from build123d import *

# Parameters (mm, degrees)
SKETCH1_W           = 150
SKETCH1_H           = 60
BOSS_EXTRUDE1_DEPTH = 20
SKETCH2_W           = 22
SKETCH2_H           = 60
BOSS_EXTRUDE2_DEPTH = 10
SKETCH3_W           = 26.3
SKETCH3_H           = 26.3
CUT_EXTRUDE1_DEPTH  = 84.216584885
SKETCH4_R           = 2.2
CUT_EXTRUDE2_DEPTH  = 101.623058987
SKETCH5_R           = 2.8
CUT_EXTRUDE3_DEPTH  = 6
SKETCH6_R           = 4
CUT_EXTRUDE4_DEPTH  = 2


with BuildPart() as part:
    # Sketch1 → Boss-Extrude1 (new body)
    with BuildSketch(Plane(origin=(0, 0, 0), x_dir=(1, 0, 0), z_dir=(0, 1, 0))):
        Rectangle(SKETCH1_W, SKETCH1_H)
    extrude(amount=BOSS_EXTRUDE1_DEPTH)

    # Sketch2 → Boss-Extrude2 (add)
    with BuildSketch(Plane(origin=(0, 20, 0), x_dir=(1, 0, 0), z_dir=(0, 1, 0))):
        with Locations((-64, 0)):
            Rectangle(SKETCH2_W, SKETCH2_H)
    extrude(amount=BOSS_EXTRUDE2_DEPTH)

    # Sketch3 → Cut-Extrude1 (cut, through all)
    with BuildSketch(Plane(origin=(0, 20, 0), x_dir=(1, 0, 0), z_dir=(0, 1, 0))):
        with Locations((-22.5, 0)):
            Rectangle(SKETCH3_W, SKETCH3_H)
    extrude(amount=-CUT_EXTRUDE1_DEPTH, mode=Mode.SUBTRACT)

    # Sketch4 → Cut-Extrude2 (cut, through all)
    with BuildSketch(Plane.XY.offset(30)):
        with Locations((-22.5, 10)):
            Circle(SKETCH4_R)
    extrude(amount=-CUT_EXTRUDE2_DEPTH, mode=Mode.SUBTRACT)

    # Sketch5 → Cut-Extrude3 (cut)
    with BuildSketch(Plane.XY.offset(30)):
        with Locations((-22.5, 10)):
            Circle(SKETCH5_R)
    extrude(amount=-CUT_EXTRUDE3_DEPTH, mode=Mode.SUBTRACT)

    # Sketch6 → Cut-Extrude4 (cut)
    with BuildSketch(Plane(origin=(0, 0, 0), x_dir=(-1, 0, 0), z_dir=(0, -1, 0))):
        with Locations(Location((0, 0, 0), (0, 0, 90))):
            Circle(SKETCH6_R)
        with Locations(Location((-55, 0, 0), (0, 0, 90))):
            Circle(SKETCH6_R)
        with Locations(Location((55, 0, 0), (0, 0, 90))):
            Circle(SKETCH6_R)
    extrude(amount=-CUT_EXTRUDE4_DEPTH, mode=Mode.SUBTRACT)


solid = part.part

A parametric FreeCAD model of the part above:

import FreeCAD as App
import Part
import Sketcher

V = App.Vector
Q = App.Units.Quantity


def add_polygon(sketch, points):
    """Adds a closed chain of lines whose ends are joined by coincident constraints."""
    first, n = sketch.GeometryCount, len(points)
    for a, b in zip(points, points[1:] + points[:1]):
        sketch.addGeometry(Part.LineSegment(App.Vector(*a, 0), App.Vector(*b, 0)), False)
    for i in range(n):
        sketch.addConstraint(Sketcher.Constraint("Coincident", first + i, 2, first + (i + 1) % n, 1))

doc = App.newDocument("Part")
body = doc.addObject("PartDesign::Body", "Body")

# Sketch on XZ plane
sketch1 = doc.addObject("Sketcher::SketchObject", "Sketch")
body.addObject(sketch1)
sketch1.AttachmentSupport = (doc.XZ_Plane, [""])
sketch1.MapMode = "FlatFace"
add_polygon(sketch1, [(-75, -30), (-75, 30), (75, 30), (75, -30)])  # lines 0-3
sketch1.addConstraint(Sketcher.Constraint("Vertical", 0))
sketch1.addConstraint(Sketcher.Constraint("Horizontal", 1))
sketch1.addConstraint(Sketcher.Constraint("Vertical", 2))
sketch1.addConstraint(Sketcher.Constraint("Horizontal", 3))
sketch1.addConstraint(Sketcher.Constraint("Symmetric", 0, 2, 2, 2, -1, 1))
sketch1.addConstraint(Sketcher.Constraint("DistanceX", 1, 1, 1, 2, Q("150 mm")))
sketch1.addConstraint(Sketcher.Constraint("DistanceY", 0, 1, 0, 2, Q("60 mm")))
pad1 = doc.addObject("PartDesign::Pad", "Pad")
body.addObject(pad1)
pad1.Profile = sketch1
pad1.Length = 20
pad1.Reversed = True

# Sketch on XZ plane
sketch2 = doc.addObject("Sketcher::SketchObject", "Sketch001")
body.addObject(sketch2)
sketch2.AttachmentSupport = (doc.XZ_Plane, [""])
sketch2.MapMode = "FlatFace"
sketch2.AttachmentOffset = App.Placement(V(0, 0, -20), App.Rotation())
add_polygon(sketch2, [(-75, -30), (-75, 30), (-53, 30), (-53, -30)])  # lines 0-3
sketch2.addConstraint(Sketcher.Constraint("Vertical", 0))
sketch2.addConstraint(Sketcher.Constraint("Horizontal", 1))
sketch2.addConstraint(Sketcher.Constraint("Vertical", 2))
sketch2.addConstraint(Sketcher.Constraint("Horizontal", 3))
sketch2.addConstraint(Sketcher.Constraint("DistanceX", 1, 1, 1, 2, Q("22 mm")))
sketch2.addConstraint(Sketcher.Constraint("DistanceY", 0, 1, 0, 2, Q("60 mm")))
sketch2.addConstraint(Sketcher.Constraint("DistanceX", 0, 2, -1, 1, Q("75 mm")))
sketch2.addConstraint(Sketcher.Constraint("DistanceY", -1, 1, 0, 2, Q("30 mm")))
pad2 = doc.addObject("PartDesign::Pad", "Pad001")
body.addObject(pad2)
pad2.Profile = sketch2
pad2.Length = 10
pad2.Reversed = True

# Sketch on XZ plane
sketch3 = doc.addObject("Sketcher::SketchObject", "Sketch002")
body.addObject(sketch3)
sketch3.AttachmentSupport = (doc.XZ_Plane, [""])
sketch3.MapMode = "FlatFace"
sketch3.AttachmentOffset = App.Placement(V(0, 0, -20), App.Rotation())
add_polygon(sketch3, [(-36, -13), (-36, 13), (-9, 13), (-9, -13)])  # lines 0-3
sketch3.addConstraint(Sketcher.Constraint("Vertical", 0))
sketch3.addConstraint(Sketcher.Constraint("Horizontal", 1))
sketch3.addConstraint(Sketcher.Constraint("Vertical", 2))
sketch3.addConstraint(Sketcher.Constraint("Horizontal", 3))
sketch3.addConstraint(Sketcher.Constraint("Equal", 3, 0))
sketch3.addConstraint(Sketcher.Constraint("DistanceX", 1, 1, 1, 2, Q("26.3 mm")))
sketch3.addConstraint(Sketcher.Constraint("DistanceX", 0, 2, -1, 1, Q("35.65 mm")))
sketch3.addConstraint(Sketcher.Constraint("DistanceY", -1, 1, 0, 2, Q("13.15 mm")))
pocket1 = doc.addObject("PartDesign::Pocket", "Pocket")
body.addObject(pocket1)
pocket1.Profile = sketch3
pocket1.Type = "ThroughAll"
pocket1.Reversed = True

# Sketch on XY plane
sketch4 = doc.addObject("Sketcher::SketchObject", "Sketch003")
body.addObject(sketch4)
sketch4.AttachmentSupport = (doc.XY_Plane, [""])
sketch4.MapMode = "FlatFace"
sketch4.AttachmentOffset = App.Placement(V(0, 0, 30), App.Rotation())
sketch4.addGeometry(Part.Circle(V(-22.5, 10, 0), V(0, 0, 1), 2.2), False)
sketch4.addConstraint(Sketcher.Constraint("Diameter", 0, Q("4.4 mm")))
sketch4.addConstraint(Sketcher.Constraint("DistanceY", -1, 1, 0, 3, Q("10 mm")))
sketch4.addConstraint(Sketcher.Constraint("DistanceX", 0, 3, -1, 1, Q("22.5 mm")))
pocket2 = doc.addObject("PartDesign::Pocket", "Pocket001")
body.addObject(pocket2)
pocket2.Profile = sketch4
pocket2.Type = "ThroughAll"

# Sketch on XY plane
sketch5 = doc.addObject("Sketcher::SketchObject", "Sketch004")
body.addObject(sketch5)
sketch5.AttachmentSupport = (doc.XY_Plane, [""])
sketch5.MapMode = "FlatFace"
sketch5.AttachmentOffset = App.Placement(V(0, 0, 30), App.Rotation())
sketch5.addGeometry(Part.Circle(V(-22.5, 10, 0), V(0, 0, 1), 2.8), False)
sketch5.addConstraint(Sketcher.Constraint("Diameter", 0, Q("5.6 mm")))
sketch5.addConstraint(Sketcher.Constraint("DistanceY", -1, 1, 0, 3, Q("10 mm")))
sketch5.addConstraint(Sketcher.Constraint("DistanceX", 0, 3, -1, 1, Q("22.5 mm")))
pocket3 = doc.addObject("PartDesign::Pocket", "Pocket002")
body.addObject(pocket3)
pocket3.Profile = sketch5
pocket3.Length = 6

# Sketch on XZ plane
sketch6 = doc.addObject("Sketcher::SketchObject", "Sketch005")
body.addObject(sketch6)
sketch6.AttachmentSupport = (doc.XZ_Plane, [""])
sketch6.MapMode = "FlatFace"
sketch6.addGeometry(Part.Circle(V(0, 0, 0), V(0, 0, 1), 4), False)
sketch6.addGeometry(Part.Circle(V(55, 0, 0), V(0, 0, 1), 4), False)
sketch6.addGeometry(Part.Circle(V(-55, 0, 0), V(0, 0, 1), 4), False)
sketch6.addConstraint(Sketcher.Constraint("Coincident", 0, 3, -1, 1))
sketch6.addConstraint(Sketcher.Constraint("Equal", 0, 1))
sketch6.addConstraint(Sketcher.Constraint("Equal", 1, 2))
sketch6.addConstraint(Sketcher.Constraint("Symmetric", 1, 3, 2, 3, -1, 1))
sketch6.addConstraint(Sketcher.Constraint("PointOnObject", 1, 3, -1))
sketch6.addConstraint(Sketcher.Constraint("Diameter", 0, Q("8 mm")))
sketch6.addConstraint(Sketcher.Constraint("DistanceX", -1, 1, 1, 3, Q("55 mm")))
pocket4 = doc.addObject("PartDesign::Pocket", "Pocket003")
body.addObject(pocket4)
pocket4.Profile = sketch6
pocket4.Length = 2

doc.recompute()
